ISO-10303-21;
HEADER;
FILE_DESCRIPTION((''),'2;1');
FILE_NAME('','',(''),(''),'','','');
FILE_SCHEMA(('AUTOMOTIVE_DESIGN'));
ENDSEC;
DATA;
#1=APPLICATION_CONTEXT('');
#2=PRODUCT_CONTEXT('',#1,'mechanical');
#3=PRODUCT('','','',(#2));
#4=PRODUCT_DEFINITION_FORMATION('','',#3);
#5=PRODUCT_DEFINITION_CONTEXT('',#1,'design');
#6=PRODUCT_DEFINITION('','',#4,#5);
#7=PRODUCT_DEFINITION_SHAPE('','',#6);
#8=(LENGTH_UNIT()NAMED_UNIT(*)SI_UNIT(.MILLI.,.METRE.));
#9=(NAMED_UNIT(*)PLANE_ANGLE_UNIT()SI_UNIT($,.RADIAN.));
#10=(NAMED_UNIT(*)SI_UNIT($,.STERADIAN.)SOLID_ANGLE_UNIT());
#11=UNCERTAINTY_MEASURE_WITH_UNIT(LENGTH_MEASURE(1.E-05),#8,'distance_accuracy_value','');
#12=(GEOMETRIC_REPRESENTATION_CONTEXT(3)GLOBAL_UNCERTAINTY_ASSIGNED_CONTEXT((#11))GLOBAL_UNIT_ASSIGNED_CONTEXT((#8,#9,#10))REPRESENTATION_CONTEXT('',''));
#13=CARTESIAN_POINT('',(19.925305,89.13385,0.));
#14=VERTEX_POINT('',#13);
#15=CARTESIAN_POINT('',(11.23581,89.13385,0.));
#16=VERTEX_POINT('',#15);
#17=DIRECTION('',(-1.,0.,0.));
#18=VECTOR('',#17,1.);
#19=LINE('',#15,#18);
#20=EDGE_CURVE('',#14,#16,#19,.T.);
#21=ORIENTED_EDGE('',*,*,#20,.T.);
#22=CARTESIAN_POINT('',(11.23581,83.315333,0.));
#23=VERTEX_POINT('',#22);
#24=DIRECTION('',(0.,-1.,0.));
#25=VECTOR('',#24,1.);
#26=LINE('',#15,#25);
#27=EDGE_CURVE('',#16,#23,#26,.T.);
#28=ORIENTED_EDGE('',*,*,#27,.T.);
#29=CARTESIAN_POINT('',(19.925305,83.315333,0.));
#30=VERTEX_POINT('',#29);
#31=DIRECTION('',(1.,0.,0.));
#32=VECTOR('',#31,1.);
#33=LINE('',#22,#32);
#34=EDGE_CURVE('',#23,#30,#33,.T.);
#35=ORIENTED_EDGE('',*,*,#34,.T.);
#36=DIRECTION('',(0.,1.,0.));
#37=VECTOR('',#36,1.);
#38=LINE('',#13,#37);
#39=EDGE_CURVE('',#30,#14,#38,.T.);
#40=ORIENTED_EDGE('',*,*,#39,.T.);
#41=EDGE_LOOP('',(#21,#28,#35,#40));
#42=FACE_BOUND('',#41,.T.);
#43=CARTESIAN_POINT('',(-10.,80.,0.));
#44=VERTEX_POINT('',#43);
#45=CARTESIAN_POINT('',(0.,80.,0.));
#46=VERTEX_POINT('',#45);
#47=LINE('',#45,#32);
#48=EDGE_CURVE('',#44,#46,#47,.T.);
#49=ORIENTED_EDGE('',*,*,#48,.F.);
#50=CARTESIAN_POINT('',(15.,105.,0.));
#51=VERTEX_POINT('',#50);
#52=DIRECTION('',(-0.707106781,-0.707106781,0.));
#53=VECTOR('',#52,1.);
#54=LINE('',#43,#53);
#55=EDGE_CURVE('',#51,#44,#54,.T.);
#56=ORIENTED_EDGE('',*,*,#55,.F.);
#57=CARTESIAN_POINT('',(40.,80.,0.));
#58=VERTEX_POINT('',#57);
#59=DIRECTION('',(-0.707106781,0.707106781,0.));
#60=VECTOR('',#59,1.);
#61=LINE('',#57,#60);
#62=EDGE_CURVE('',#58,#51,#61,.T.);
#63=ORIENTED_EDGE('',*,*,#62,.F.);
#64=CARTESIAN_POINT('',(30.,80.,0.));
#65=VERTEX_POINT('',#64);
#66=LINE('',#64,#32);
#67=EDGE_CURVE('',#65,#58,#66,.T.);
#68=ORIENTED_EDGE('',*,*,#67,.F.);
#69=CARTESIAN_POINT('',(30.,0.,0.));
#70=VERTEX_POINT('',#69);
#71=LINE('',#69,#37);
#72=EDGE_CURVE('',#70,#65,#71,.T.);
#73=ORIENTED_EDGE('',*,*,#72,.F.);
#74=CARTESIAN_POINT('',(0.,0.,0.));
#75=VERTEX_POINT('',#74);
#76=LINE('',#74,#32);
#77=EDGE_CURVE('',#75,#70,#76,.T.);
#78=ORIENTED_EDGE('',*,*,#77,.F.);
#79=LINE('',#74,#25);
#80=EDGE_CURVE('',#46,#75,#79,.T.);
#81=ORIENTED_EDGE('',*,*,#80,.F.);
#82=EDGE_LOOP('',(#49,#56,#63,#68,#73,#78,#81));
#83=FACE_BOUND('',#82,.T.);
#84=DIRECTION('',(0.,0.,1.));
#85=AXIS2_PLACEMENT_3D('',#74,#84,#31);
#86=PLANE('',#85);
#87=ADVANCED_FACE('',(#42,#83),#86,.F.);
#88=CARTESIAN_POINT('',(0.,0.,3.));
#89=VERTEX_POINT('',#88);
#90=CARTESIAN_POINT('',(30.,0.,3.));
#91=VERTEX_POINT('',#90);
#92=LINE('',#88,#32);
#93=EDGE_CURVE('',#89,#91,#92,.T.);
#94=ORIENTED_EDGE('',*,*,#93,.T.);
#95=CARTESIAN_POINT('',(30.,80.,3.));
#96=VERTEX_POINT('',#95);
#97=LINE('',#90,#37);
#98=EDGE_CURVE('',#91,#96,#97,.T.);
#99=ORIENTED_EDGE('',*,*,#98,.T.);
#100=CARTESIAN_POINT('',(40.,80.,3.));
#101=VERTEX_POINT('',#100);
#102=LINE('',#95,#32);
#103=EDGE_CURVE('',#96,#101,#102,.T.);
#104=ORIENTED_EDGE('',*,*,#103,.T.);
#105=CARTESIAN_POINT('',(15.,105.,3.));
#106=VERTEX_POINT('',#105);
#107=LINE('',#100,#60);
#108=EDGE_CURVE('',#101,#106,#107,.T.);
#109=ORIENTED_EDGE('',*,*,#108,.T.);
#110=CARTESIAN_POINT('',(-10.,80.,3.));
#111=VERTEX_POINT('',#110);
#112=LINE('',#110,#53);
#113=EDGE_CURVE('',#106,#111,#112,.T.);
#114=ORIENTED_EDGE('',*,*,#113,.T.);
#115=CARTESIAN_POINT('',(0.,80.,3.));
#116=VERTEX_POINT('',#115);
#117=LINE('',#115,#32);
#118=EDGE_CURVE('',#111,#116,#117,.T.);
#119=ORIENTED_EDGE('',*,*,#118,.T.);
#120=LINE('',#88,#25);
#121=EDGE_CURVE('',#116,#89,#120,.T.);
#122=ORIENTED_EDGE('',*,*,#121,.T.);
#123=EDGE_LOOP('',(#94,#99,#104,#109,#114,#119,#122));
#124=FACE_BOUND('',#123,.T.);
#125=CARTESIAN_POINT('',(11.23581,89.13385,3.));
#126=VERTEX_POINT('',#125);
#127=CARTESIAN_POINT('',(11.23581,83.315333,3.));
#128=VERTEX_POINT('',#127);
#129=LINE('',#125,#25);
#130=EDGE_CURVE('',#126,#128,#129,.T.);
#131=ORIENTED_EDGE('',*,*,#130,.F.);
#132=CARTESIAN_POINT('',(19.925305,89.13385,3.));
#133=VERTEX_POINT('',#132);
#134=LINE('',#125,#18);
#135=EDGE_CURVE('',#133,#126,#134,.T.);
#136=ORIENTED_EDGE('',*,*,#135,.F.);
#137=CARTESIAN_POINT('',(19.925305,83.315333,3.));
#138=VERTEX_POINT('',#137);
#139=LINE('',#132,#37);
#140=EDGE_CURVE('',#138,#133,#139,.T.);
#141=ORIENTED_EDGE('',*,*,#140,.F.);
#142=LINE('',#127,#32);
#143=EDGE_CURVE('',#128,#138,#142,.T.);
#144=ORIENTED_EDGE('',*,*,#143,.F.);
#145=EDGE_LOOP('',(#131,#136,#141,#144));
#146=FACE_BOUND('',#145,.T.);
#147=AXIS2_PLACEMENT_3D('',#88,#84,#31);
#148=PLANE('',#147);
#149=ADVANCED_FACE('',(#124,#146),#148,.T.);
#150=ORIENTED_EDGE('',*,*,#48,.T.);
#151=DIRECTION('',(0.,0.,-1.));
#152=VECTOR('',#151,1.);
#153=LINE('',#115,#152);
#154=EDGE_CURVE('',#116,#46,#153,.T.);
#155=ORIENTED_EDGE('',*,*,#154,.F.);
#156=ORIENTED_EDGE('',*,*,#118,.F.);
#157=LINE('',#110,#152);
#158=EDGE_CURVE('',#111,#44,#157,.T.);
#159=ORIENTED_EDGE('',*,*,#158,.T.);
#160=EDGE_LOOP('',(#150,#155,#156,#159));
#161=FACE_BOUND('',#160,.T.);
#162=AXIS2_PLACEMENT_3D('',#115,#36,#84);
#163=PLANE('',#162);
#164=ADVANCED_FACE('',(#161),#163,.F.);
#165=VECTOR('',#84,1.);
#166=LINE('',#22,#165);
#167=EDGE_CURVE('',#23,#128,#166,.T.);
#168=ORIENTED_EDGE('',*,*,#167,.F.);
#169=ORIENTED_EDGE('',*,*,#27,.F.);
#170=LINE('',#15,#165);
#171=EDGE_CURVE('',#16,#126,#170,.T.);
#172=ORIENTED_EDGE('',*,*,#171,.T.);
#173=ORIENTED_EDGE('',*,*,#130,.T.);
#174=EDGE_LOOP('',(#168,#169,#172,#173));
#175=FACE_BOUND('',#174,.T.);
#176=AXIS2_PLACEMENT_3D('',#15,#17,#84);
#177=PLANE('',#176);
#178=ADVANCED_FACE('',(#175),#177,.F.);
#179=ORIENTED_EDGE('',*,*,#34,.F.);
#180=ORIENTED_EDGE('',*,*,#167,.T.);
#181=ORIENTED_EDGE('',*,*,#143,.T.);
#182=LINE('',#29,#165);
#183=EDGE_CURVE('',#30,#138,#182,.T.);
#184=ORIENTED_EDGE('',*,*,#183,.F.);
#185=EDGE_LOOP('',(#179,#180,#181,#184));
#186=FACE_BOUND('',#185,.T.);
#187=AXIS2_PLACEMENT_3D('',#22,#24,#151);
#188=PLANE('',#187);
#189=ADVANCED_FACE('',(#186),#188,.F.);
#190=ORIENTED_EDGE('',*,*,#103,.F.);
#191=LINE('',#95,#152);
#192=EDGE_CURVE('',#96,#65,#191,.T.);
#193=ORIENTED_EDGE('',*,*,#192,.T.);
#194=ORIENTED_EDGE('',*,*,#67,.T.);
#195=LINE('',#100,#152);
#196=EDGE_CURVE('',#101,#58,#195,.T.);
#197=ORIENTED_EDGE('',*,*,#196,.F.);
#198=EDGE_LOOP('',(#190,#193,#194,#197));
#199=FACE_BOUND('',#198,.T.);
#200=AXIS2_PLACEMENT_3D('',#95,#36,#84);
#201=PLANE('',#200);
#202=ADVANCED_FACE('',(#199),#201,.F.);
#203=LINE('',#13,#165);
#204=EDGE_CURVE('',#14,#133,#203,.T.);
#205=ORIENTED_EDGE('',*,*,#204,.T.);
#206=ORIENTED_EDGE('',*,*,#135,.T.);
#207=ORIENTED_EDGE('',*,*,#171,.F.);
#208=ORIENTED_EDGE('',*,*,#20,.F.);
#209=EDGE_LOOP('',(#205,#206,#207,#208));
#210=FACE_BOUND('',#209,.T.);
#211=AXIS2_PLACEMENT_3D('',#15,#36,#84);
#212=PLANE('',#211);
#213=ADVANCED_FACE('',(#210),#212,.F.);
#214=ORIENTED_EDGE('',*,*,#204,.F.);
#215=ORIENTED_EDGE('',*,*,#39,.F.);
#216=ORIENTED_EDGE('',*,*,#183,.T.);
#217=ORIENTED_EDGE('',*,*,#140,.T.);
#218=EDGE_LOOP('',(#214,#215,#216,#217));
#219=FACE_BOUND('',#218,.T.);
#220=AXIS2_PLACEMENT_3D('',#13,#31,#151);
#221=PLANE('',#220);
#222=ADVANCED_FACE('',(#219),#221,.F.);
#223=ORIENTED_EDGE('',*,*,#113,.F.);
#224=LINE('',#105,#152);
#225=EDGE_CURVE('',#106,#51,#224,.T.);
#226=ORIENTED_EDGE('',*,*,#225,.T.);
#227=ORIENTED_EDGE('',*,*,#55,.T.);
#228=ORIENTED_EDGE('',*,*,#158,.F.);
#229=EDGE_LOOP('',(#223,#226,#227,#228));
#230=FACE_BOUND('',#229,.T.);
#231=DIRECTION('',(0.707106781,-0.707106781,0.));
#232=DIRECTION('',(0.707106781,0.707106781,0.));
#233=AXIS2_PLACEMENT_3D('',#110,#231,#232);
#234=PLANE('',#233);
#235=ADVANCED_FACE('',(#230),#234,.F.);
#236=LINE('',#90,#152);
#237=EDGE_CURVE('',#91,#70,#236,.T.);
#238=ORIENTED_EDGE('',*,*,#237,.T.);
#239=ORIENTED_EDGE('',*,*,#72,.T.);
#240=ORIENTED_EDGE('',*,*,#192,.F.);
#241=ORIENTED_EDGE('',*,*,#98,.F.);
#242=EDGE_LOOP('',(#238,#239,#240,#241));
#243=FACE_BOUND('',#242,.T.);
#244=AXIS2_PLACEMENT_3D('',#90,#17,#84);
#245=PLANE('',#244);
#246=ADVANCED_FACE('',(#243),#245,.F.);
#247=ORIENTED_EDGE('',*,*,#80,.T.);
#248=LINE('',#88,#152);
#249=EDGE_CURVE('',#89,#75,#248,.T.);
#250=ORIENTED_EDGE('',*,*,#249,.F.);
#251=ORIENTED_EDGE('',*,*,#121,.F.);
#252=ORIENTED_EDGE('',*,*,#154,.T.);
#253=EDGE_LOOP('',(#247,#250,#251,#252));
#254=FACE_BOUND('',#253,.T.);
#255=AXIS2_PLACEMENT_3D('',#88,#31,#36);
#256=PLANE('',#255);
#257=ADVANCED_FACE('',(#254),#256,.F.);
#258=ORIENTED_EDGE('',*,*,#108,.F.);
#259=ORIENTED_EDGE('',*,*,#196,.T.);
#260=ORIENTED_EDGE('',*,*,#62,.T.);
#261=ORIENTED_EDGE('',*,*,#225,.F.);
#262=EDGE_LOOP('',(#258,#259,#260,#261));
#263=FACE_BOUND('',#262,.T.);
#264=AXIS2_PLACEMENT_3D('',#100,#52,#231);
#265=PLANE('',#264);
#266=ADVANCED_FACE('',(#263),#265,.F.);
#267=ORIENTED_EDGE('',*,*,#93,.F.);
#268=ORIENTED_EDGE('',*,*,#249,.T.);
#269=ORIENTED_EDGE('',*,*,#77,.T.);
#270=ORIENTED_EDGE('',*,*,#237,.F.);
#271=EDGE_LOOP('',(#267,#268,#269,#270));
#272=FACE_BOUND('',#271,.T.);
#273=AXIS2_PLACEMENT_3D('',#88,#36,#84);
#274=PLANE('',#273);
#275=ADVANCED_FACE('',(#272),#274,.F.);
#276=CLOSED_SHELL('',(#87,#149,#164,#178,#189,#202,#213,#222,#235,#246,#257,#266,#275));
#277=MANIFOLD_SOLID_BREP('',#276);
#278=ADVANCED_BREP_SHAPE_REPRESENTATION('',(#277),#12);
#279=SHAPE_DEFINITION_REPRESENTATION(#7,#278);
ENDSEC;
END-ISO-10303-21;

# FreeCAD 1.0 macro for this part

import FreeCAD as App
import Part
import Sketcher
Q = App.Units.Quantity


def add_polygon(sketch, points):
    """Adds a closed chain of lines whose ends are joined by coincident constraints."""
    first, n = sketch.GeometryCount, len(points)
    for a, b in zip(points, points[1:] + points[:1]):
        sketch.addGeometry(Part.LineSegment(App.Vector(*a, 0), App.Vector(*b, 0)), False)
    for i in range(n):
        sketch.addConstraint(Sketcher.Constraint("Coincident", first + i, 2, first + (i + 1) % n, 1))

doc = App.newDocument("Part")
body = doc.addObject("PartDesign::Body", "Body")

# Sketch on XY plane
sketch1 = doc.addObject("Sketcher::SketchObject", "Sketch")
body.addObject(sketch1)
sketch1.AttachmentSupport = (doc.XY_Plane, [""])
sketch1.MapMode = "FlatFace"
add_polygon(sketch1, [(0, 0), (30, 0), (30, 80), (40, 80), (15, 105), (-10, 80), (0, 80)])  # lines 0-6
sketch1.addConstraint([
    Sketcher.Constraint("Horizontal", 0),
    Sketcher.Constraint("Vertical", 1),
    Sketcher.Constraint("Horizontal", 2),
    Sketcher.Constraint("Horizontal", 5),
    Sketcher.Constraint("Vertical", 6),
    Sketcher.Constraint("Coincident", 6, 2, -1, 1),
    Sketcher.Constraint("Perpendicular", 3, 4),
    Sketcher.Constraint("Horizontal", 2, 2, 4, 2),
    Sketcher.Constraint("Equal", 2, 5),
    Sketcher.Constraint("Equal", 3, 4),
    Sketcher.Constraint("DistanceX", 0, 1, 0, 2, Q("30 mm")),
    Sketcher.Constraint("DistanceX", 2, 1, 2, 2, Q("10 mm")),
    Sketcher.Constraint("DistanceY", 1, 1, 1, 2, Q("80 mm")),
])
pad1 = doc.addObject("PartDesign::Pad", "Pad")
body.addObject(pad1)
pad1.Profile = sketch1
pad1.Length = 3

# Sketch on XY plane
sketch2 = doc.addObject("Sketcher::SketchObject", "Sketch001")
body.addObject(sketch2)
sketch2.AttachmentSupport = (doc.XY_Plane, [""])
sketch2.MapMode = "FlatFace"
sketch2.AttachmentOffset = App.Placement(App.Vector(0, 0, 3), App.Rotation())
add_polygon(sketch2, [(11, 89), (11, 83), (20, 83), (20, 89)])  # lines 0-3
sketch2.addConstraint([
    Sketcher.Constraint("Vertical", 0),
    Sketcher.Constraint("Horizontal", 1),
    Sketcher.Constraint("Vertical", 2),
    Sketcher.Constraint("Horizontal", 3),
    Sketcher.Constraint("DistanceX", 1, 1, 1, 2, Q("8.689495 mm")),
    Sketcher.Constraint("DistanceY", 0, 2, 0, 1, Q("5.818516 mm")),
    Sketcher.Constraint("DistanceX", -1, 1, 0, 2, Q("11.23581 mm")),
    Sketcher.Constraint("DistanceY", -1, 1, 2, 2, Q("89.13385 mm")),
])
pocket1 = doc.addObject("PartDesign::Pocket", "Pocket")
body.addObject(pocket1)
pocket1.Profile = sketch2
pocket1.Length = 3

doc.recompute()
